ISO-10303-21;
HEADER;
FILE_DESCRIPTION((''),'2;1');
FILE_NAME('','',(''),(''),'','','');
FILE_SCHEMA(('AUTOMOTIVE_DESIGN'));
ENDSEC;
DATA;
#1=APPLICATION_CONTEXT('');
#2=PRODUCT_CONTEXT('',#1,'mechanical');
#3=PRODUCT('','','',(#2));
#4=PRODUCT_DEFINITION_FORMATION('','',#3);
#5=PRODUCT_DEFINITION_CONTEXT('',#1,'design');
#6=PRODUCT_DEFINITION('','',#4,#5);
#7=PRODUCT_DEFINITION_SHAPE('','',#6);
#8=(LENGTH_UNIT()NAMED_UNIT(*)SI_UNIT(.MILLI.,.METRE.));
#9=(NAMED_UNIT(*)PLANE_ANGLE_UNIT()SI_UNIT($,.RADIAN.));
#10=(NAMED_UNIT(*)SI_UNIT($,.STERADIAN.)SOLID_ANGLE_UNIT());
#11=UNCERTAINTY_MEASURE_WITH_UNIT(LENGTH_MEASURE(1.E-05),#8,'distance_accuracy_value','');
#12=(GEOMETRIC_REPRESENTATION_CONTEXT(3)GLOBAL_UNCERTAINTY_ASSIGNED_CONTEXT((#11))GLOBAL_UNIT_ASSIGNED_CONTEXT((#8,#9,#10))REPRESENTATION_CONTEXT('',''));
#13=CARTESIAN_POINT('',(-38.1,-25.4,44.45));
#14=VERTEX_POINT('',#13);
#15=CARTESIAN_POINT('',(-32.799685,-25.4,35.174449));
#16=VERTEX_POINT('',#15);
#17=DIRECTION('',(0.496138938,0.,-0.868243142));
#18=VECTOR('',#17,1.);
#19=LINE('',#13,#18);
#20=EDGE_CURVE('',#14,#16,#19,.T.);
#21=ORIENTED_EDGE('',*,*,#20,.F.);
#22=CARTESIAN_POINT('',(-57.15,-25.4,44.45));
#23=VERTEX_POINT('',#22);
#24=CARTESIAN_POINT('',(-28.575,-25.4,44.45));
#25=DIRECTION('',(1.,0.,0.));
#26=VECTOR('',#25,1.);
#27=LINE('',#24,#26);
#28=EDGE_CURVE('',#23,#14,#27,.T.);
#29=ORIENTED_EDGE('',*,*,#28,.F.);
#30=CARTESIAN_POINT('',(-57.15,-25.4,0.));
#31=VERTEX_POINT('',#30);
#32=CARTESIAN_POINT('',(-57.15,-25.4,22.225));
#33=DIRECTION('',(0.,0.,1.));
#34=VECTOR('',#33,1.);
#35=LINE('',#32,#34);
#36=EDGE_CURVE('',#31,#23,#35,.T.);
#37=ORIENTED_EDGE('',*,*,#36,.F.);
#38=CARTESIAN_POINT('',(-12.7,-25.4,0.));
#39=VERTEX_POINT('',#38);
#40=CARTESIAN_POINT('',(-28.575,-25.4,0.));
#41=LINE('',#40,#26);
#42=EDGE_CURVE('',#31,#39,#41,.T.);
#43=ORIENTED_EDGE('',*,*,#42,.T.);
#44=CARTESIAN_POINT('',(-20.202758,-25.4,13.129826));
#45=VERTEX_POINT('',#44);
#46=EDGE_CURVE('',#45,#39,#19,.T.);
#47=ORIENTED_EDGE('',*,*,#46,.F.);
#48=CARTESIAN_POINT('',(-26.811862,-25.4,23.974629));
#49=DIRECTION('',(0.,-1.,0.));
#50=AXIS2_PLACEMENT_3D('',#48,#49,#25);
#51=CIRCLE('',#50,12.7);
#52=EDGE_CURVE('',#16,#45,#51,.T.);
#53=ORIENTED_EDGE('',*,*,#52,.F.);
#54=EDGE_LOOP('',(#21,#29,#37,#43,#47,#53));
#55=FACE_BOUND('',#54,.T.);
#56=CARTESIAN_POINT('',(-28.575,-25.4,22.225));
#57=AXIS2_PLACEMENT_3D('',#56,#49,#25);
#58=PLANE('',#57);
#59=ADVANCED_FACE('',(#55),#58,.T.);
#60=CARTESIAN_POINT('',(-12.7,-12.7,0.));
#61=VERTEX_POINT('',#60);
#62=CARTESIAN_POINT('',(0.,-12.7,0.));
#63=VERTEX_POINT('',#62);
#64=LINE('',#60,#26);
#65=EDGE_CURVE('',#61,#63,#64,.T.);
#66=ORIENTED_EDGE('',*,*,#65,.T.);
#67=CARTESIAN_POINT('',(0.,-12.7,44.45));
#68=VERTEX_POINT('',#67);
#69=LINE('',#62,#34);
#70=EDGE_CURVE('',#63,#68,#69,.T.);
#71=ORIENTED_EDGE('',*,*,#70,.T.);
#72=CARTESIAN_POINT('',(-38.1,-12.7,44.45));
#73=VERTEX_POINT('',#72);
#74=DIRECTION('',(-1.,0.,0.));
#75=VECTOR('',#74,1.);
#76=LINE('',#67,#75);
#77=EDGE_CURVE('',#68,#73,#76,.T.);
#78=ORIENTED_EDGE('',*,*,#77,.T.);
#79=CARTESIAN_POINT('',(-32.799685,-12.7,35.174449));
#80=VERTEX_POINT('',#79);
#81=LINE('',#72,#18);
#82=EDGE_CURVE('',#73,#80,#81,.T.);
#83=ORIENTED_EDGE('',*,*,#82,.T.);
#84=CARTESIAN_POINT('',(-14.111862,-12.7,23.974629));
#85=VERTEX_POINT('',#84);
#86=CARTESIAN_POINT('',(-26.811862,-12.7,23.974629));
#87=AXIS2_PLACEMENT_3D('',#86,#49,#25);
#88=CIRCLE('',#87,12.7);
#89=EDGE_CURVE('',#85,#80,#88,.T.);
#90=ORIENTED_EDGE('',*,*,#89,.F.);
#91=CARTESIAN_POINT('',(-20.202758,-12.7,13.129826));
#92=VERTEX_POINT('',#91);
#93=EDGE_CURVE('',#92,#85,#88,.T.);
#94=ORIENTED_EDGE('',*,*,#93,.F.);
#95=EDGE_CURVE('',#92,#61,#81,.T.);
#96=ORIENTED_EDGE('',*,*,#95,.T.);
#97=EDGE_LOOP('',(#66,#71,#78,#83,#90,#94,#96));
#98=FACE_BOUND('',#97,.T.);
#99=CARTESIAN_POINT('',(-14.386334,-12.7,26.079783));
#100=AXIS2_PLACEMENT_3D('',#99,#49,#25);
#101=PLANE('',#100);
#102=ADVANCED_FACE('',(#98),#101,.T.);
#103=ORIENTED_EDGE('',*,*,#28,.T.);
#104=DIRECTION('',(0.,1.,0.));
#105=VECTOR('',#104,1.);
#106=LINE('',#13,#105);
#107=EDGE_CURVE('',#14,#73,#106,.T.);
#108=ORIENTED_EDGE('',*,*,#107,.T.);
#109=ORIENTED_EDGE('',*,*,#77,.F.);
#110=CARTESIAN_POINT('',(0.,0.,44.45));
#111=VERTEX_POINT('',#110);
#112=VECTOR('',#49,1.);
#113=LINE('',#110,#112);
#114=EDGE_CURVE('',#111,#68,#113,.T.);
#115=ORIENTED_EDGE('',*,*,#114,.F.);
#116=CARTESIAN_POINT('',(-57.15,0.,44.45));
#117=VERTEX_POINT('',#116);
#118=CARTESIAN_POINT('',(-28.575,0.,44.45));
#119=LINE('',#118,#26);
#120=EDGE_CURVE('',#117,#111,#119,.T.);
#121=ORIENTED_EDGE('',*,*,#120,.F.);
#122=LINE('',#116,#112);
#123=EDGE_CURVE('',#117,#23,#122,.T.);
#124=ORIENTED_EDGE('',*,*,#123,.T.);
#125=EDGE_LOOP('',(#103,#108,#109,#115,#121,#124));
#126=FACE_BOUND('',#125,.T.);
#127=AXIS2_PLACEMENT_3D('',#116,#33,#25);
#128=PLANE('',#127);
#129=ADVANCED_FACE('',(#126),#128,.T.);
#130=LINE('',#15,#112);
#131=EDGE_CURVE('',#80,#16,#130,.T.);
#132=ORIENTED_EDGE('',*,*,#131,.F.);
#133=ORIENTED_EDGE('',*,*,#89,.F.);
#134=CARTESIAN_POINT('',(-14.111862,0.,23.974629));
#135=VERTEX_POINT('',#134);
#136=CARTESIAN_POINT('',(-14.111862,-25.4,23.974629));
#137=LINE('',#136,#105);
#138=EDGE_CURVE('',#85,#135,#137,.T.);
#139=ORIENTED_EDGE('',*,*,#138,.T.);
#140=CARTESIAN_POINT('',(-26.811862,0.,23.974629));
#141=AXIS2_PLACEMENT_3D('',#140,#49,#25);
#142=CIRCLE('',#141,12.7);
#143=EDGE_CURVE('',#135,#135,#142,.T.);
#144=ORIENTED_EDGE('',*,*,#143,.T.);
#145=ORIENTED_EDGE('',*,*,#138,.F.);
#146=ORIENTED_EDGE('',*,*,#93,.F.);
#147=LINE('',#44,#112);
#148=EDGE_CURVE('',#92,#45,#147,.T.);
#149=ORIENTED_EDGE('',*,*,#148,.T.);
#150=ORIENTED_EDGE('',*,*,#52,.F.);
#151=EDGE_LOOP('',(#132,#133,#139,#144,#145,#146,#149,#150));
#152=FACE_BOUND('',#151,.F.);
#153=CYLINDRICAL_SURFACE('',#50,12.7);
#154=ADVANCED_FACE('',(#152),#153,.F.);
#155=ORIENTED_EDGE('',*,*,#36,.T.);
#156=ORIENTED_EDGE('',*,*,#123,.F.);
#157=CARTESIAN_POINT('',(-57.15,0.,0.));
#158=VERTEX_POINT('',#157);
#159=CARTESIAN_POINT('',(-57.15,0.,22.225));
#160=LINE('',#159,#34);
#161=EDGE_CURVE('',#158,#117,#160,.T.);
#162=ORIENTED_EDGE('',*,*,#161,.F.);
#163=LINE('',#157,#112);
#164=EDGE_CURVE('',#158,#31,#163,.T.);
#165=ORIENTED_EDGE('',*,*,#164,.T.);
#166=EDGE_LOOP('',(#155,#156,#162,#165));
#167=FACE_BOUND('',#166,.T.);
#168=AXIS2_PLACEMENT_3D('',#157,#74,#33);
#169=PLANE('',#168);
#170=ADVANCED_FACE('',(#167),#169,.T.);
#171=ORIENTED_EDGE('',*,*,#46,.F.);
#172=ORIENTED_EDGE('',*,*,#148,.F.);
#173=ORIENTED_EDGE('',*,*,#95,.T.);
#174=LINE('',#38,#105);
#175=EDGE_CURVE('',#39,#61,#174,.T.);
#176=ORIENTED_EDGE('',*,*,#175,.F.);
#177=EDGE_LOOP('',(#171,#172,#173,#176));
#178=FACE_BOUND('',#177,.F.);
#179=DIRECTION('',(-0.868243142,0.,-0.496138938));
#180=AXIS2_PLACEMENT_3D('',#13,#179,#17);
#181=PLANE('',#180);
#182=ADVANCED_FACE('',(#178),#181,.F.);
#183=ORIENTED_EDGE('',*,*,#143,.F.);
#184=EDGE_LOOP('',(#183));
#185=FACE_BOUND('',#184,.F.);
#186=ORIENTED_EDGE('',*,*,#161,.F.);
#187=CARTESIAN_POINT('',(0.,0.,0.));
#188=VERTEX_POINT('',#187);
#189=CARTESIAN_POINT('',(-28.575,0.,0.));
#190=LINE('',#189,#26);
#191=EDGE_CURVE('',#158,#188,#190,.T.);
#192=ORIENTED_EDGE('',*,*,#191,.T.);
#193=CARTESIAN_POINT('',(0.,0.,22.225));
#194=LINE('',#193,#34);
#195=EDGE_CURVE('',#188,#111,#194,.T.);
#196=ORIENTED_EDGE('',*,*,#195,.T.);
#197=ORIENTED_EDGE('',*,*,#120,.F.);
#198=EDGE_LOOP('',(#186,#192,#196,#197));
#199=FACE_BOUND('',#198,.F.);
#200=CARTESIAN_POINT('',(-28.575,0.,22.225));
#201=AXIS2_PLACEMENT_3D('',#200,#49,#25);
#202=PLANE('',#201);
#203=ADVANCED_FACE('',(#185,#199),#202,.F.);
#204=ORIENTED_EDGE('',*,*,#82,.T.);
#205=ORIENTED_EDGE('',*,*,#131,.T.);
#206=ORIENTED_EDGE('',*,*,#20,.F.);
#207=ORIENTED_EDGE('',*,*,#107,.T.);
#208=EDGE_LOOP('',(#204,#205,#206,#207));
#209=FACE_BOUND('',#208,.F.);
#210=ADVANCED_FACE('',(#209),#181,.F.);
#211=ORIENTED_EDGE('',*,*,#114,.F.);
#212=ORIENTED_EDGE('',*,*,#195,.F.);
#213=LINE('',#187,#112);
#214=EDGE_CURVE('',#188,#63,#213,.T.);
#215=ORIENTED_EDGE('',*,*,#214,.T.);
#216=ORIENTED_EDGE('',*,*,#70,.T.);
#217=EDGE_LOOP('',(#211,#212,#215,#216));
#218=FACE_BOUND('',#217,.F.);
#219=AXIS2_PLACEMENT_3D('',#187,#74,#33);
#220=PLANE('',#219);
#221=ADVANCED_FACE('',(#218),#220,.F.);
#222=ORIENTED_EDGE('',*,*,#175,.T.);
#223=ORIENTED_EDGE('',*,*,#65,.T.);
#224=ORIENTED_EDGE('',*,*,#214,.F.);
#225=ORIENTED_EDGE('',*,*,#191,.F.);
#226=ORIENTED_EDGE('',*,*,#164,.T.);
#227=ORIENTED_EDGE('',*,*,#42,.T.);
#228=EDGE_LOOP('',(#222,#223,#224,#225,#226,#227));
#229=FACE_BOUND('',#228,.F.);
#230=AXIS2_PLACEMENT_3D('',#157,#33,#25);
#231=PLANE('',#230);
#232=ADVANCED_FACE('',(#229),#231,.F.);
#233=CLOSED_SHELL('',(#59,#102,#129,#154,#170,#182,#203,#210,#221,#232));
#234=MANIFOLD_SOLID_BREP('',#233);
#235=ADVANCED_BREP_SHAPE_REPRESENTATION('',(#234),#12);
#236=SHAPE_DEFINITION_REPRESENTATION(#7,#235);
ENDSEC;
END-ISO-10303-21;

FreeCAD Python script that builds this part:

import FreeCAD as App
import Part
import Sketcher

V = App.Vector
Q = App.Units.Quantity

doc = App.newDocument("Part")
body = doc.addObject("PartDesign::Body", "Body")

# Sketch on XZ plane
sketch1 = body.newObject("Sketcher::SketchObject", "Sketch")
sketch1.AttachmentSupport = (doc.getObject("XZ_Plane"), [""])
sketch1.MapMode = "FlatFace"
sketch1.addGeometry(Part.LineSegment(V(-57, 44, 0), V(-57, 0, 0)), False)
sketch1.addGeometry(Part.LineSegment(V(-57, 0, 0), V(0, 0, 0)), False)
sketch1.addGeometry(Part.LineSegment(V(0, 0, 0), V(0, 44, 0)), False)
sketch1.addGeometry(Part.LineSegment(V(0, 44, 0), V(-57, 44, 0)), False)
sketch1.addConstraint(Sketcher.Constraint("Coincident", 0, 2, 1, 1))
sketch1.addConstraint(Sketcher.Constraint("Coincident", 1, 2, 2, 1))
sketch1.addConstraint(Sketcher.Constraint("Coincident", 2, 2, 3, 1))
sketch1.addConstraint(Sketcher.Constraint("Coincident", 3, 2, 0, 1))
sketch1.addConstraint(Sketcher.Constraint("Vertical", 0))
sketch1.addConstraint(Sketcher.Constraint("Horizontal", 1))
sketch1.addConstraint(Sketcher.Constraint("Vertical", 2))
sketch1.addConstraint(Sketcher.Constraint("Horizontal", 3))
sketch1.addConstraint(Sketcher.Constraint("Coincident", 1, 2, -1, 1))
sketch1.addConstraint(Sketcher.Constraint("DistanceX", 1, 1, 1, 2, Q("2.25 in")))
sketch1.addConstraint(Sketcher.Constraint("DistanceY", 0, 2, 0, 1, Q("1.75 in")))
pad1 = body.newObject("PartDesign::Pad", "Pad")
pad1.Profile = sketch1
pad1.Length = Q("1 in")

# Sketch on XZ plane
sketch2 = body.newObject("Sketcher::SketchObject", "Sketch001")
sketch2.AttachmentSupport = (doc.getObject("XZ_Plane"), [""])
sketch2.MapMode = "FlatFace"
sketch2.AttachmentOffset = App.Placement(V(0, 0, 1 * 25.4), App.Rotation())
sketch2.addGeometry(Part.Circle(V(-27, 24, 0), V(0, 0, 1), 13), False)
sketch2.addConstraint(Sketcher.Constraint("Diameter", 0, Q("1 in")))
sketch2.addConstraint(Sketcher.Constraint("DistanceY", -1, 1, 0, 3, 23.974629))
sketch2.addConstraint(Sketcher.Constraint("DistanceX", 0, 3, -1, 1, 26.811862))
pocket1 = body.newObject("PartDesign::Pocket", "Pocket")
pocket1.Profile = sketch2
pocket1.Type = "ThroughAll"

# Sketch on XZ plane
sketch3 = body.newObject("Sketcher::SketchObject", "Sketch002")
sketch3.AttachmentSupport = (doc.getObject("XZ_Plane"), [""])
sketch3.MapMode = "FlatFace"
sketch3.AttachmentOffset = App.Placement(V(0, 0, 1 * 25.4), App.Rotation())
sketch3.addGeometry(Part.LineSegment(V(0, 44, 0), V(-38, 44, 0)), False)
sketch3.addGeometry(Part.LineSegment(V(-38, 44, 0), V(-13, 0, 0)), False)
sketch3.addGeometry(Part.LineSegment(V(-13, 0, 0), V(0, 0, 0)), False)
sketch3.addGeometry(Part.LineSegment(V(0, 0, 0), V(0, 44, 0)), False)
sketch3.addConstraint(Sketcher.Constraint("Coincident", 0, 2, 1, 1))
sketch3.addConstraint(Sketcher.Constraint("Coincident", 1, 2, 2, 1))
sketch3.addConstraint(Sketcher.Constraint("Coincident", 2, 2, 3, 1))
sketch3.addConstraint(Sketcher.Constraint("Coincident", 3, 2, 0, 1))
sketch3.addConstraint(Sketcher.Constraint("Horizontal", 0))
sketch3.addConstraint(Sketcher.Constraint("Horizontal", 2))
sketch3.addConstraint(Sketcher.Constraint("Vertical", 3))
sketch3.addConstraint(Sketcher.Constraint("Coincident", 2, 2, -1, 1))
sketch3.addConstraint(Sketcher.Constraint("DistanceX", 0, 2, 0, 1, Q("1.5 in")))
sketch3.addConstraint(Sketcher.Constraint("DistanceX", 2, 1, 2, 2, Q("0.5 in")))
sketch3.addConstraint(Sketcher.Constraint("DistanceY", 3, 1, 3, 2, Q("1.75 in")))
pocket2 = body.newObject("PartDesign::Pocket", "Pocket001")
pocket2.Profile = sketch3
pocket2.Length = Q("0.5 in")

doc.recompute()
